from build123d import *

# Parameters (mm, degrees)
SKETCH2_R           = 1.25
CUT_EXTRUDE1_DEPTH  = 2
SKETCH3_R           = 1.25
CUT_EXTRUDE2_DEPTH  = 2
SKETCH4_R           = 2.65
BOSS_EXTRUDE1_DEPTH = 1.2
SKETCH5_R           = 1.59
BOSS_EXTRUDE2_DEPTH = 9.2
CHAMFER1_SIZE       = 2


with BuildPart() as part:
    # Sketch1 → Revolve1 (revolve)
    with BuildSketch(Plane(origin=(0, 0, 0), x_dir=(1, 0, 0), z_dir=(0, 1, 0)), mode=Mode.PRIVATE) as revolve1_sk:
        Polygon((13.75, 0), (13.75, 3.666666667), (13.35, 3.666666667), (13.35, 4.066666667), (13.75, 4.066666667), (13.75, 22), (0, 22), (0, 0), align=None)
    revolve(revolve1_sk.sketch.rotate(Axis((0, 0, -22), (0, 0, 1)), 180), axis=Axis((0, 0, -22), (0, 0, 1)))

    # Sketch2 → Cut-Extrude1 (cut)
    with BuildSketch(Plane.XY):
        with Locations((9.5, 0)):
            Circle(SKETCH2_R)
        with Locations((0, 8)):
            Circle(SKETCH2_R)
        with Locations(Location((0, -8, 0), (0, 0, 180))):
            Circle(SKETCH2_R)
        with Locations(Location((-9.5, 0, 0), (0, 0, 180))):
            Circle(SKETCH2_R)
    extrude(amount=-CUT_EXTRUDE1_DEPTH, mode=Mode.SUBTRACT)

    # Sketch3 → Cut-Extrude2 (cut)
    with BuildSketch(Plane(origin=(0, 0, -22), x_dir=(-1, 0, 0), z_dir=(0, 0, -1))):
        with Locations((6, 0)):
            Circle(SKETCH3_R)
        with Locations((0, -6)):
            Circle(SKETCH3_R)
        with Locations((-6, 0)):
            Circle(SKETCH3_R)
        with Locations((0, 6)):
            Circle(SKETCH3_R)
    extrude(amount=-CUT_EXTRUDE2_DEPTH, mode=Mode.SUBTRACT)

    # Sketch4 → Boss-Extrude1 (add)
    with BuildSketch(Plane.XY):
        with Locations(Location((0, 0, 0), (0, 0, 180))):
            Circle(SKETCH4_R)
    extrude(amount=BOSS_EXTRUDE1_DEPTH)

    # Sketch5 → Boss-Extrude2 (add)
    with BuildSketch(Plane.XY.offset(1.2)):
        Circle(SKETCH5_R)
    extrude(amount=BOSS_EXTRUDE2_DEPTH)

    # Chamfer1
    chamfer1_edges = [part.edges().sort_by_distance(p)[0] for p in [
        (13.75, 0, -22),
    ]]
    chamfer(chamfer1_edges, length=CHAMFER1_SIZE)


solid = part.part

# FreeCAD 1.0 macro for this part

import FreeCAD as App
import Part
import Sketcher

V = App.Vector


def edges_at(feature, points):
    """Names of the edges that pass closest to the given points."""
    edges = feature.Shape.Edges
    near = lambda p: min(range(len(edges)), key=lambda i: edges[i].distToShape(Part.Vertex(*p))[0])
    return sorted({f"Edge{near(p) + 1}" for p in points})


def add_polygon(sketch, points):
    """Adds a closed chain of lines whose ends are joined by coincident constraints."""
    first, n = sketch.GeometryCount, len(points)
    for a, b in zip(points, points[1:] + points[:1]):
        sketch.addGeometry(Part.LineSegment(App.Vector(*a, 0), App.Vector(*b, 0)), False)
    for i in range(n):
        sketch.addConstraint(Sketcher.Constraint("Coincident", first + i, 2, first + (i + 1) % n, 1))

doc = App.newDocument("Part")
body = doc.addObject("PartDesign::Body", "Body")

sketch1 = body.newObject("Sketcher::SketchObject", "Sketch")
sketch1.AttachmentSupport = (doc.getObject("XZ_Plane"), [""])
sketch1.MapMode = "FlatFace"
add_polygon(sketch1, [(13.75, 0), (13.75, -3.666667), (13.35, -3.666667), (13.35, -4.066667), (13.75, -4.066667), (13.75, -22), (0, -22), (0, 0)])
sketch1.addConstraint([
    Sketcher.Constraint("Vertical", 0),
    Sketcher.Constraint("Horizontal", 1),
    Sketcher.Constraint("Vertical", 2),
    Sketcher.Constraint("Horizontal", 3),
    Sketcher.Constraint("Vertical", 4),
    Sketcher.Constraint("Horizontal", 5),
    Sketcher.Constraint("Vertical", 6),
    Sketcher.Constraint("Horizontal", 7),
    Sketcher.Constraint("Coincident", 6, 2, -1, 1),
    Sketcher.Constraint("Vertical", 0, 2, 3, 2),
    Sketcher.Constraint("Equal", 3, 2),
    Sketcher.Constraint("DistanceY", 6, 1, 6, 2, 22.0),
    Sketcher.Constraint("DistanceX", 1, 2, 1, 1, 0.4),
    Sketcher.Constraint("DistanceX", 5, 2, 5, 1, 13.75),
    Sketcher.Constraint("DistanceY", 0, 2, 0, 1, 3.666667),
])
revolution = body.newObject("PartDesign::Revolution", "Revolution")
revolution.Profile = sketch1
revolution.ReferenceAxis = (sketch1, ["V_Axis"])
revolution.Angle = 360

sketch2 = body.newObject("Sketcher::SketchObject", "Sketch001")
sketch2.AttachmentSupport = (doc.getObject("XY_Plane"), [""])
sketch2.MapMode = "FlatFace"
sketch2.addGeometry([
    Part.Circle(V(9.5, 0, 0), V(0, 0, 1), 1.25),
    Part.Circle(V(0, 8, 0), V(0, 0, 1), 1.25),
    Part.Circle(V(0, -8, 0), V(0, 0, 1), 1.25),
    Part.Circle(V(-9.5, 0, 0), V(0, 0, 1), 1.25),
], False)
sketch2.addConstraint([
    Sketcher.Constraint("Equal", 0, 1),
    Sketcher.Constraint("Equal", 1, 2),
    Sketcher.Constraint("Equal", 2, 3),
    Sketcher.Constraint("Symmetric", 1, 3, 2, 3, -1, 1),
    Sketcher.Constraint("Symmetric", 0, 3, 3, 3, -1, 1),
    Sketcher.Constraint("PointOnObject", 0, 3, -1),
    Sketcher.Constraint("PointOnObject", 1, 3, -2),
    Sketcher.Constraint("Diameter", 0, 2.5),
    Sketcher.Constraint("DistanceY", -1, 1, 1, 3, 8.0),
    Sketcher.Constraint("DistanceX", 3, 3, 0, 3, 19.0),
])
pocket1 = body.newObject("PartDesign::Pocket", "Pocket")
pocket1.Profile = sketch2
pocket1.Length = 2

sketch3 = body.newObject("Sketcher::SketchObject", "Sketch002")
sketch3.AttachmentSupport = (doc.getObject("XY_Plane"), [""])
sketch3.MapMode = "FlatFace"
sketch3.AttachmentOffset = App.Placement(V(0, 0, -22), App.Rotation())
sketch3.addGeometry([
    Part.Circle(V(-6, 0, 0), V(0, 0, 1), 1.25),
    Part.Circle(V(0, -6, 0), V(0, 0, 1), 1.25),
    Part.Circle(V(6, 0, 0), V(0, 0, 1), 1.25),
    Part.Circle(V(0, 6, 0), V(0, 0, 1), 1.25),
], False)
sketch3.addConstraint([
    Sketcher.Constraint("Equal", 0, 1),
    Sketcher.Constraint("Equal", 1, 2),
    Sketcher.Constraint("Equal", 2, 3),
    Sketcher.Constraint("Symmetric", 0, 3, 2, 3, -1, 1),
    Sketcher.Constraint("Symmetric", 1, 3, 3, 3, -1, 1),
    Sketcher.Constraint("PointOnObject", 0, 3, -1),
    Sketcher.Constraint("PointOnObject", 1, 3, -2),
    Sketcher.Constraint("Diameter", 0, 2.5),
    Sketcher.Constraint("DistanceX", 0, 3, -1, 1, 6.0),
    Sketcher.Constraint("DistanceY", 1, 3, -1, 1, 6.0),
])
pocket2 = body.newObject("PartDesign::Pocket", "Pocket001")
pocket2.Profile = sketch3
pocket2.Length = 2
pocket2.Reversed = True

sketch4 = body.newObject("Sketcher::SketchObject", "Sketch003")
sketch4.AttachmentSupport = (doc.getObject("XY_Plane"), [""])
sketch4.MapMode = "FlatFace"
sketch4.addGeometry(Part.Circle(V(0, 0, 0), V(0, 0, 1), 2.65), False)
sketch4.addConstraint([
    Sketcher.Constraint("Coincident", 0, 3, -1, 1),
    Sketcher.Constraint("Diameter", 0, 5.3),
])
pad1 = body.newObject("PartDesign::Pad", "Pad")
pad1.Profile = sketch4
pad1.Length = 1.2

sketch5 = body.newObject("Sketcher::SketchObject", "Sketch004")
sketch5.AttachmentSupport = (doc.getObject("XY_Plane"), [""])
sketch5.MapMode = "FlatFace"
sketch5.AttachmentOffset = App.Placement(V(0, 0, 1.2), App.Rotation())
sketch5.addGeometry(Part.Circle(V(0, 0, 0), V(0, 0, 1), 1.59), False)
sketch5.addConstraint([
    Sketcher.Constraint("Coincident", 0, 3, -1, 1),
    Sketcher.Constraint("Diameter", 0, 3.18),
])
pad2 = body.newObject("PartDesign::Pad", "Pad001")
pad2.Profile = sketch5
pad2.Length = 9.2
doc.recompute()

chamfer = body.newObject("PartDesign::Chamfer", "Chamfer")
chamfer.Base = (pad2, edges_at(pad2, [(13.75, 0, -22)]))
chamfer.Size = 2

doc.recompute()
